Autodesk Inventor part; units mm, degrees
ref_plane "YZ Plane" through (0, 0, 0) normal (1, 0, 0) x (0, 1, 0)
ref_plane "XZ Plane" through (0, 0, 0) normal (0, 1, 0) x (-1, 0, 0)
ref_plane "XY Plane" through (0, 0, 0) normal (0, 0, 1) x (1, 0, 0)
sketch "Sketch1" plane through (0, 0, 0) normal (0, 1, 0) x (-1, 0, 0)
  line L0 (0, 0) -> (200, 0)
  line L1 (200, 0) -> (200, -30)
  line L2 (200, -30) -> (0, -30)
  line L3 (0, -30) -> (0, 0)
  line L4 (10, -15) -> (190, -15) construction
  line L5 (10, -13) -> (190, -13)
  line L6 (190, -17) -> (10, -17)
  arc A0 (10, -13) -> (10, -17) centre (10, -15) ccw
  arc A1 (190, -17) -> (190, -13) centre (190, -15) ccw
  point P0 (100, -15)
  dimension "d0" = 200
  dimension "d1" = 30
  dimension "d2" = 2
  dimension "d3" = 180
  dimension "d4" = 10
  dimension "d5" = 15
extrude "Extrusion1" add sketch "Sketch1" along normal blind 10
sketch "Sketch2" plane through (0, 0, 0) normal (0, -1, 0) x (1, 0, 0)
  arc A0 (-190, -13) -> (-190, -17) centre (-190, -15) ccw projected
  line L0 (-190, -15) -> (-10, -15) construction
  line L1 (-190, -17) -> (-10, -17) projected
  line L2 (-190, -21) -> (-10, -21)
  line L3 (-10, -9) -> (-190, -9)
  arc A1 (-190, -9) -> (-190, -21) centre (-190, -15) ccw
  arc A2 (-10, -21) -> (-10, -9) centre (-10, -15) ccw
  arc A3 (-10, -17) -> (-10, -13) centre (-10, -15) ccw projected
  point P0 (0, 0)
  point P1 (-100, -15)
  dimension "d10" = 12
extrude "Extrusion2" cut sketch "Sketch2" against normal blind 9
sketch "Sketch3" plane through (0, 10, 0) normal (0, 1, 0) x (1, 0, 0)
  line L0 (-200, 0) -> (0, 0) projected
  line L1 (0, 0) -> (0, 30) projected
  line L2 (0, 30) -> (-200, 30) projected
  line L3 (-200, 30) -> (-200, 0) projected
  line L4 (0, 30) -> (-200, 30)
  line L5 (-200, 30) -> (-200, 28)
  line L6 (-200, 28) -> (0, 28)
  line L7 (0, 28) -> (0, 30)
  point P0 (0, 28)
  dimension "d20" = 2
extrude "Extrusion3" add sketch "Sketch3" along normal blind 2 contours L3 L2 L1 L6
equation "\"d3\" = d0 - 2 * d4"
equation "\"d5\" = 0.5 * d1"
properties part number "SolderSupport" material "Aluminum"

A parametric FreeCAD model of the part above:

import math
import FreeCAD as App
import Part
import Sketcher

V = App.Vector
Q = App.Units.Quantity

doc = App.newDocument("Part")
body = doc.addObject("PartDesign::Body", "Body")

# Sketch on XZ plane
sketch1 = doc.addObject("Sketcher::SketchObject", "Sketch")
body.addObject(sketch1)
sketch1.AttachmentSupport = (doc.XZ_Plane, [""])
sketch1.MapMode = "FlatFace"
sketch1.addGeometry([
    Part.LineSegment(V(-200, 0, 0), V(0, 0, 0)),  # 0
    Part.LineSegment(V(0, 0, 0), V(0, -30, 0)),  # 1
    Part.LineSegment(V(0, -30, 0), V(-200, -30, 0)),  # 2
    Part.LineSegment(V(-200, -30, 0), V(-200, 0, 0)),  # 3
    Part.ArcOfCircle(Part.Circle(V(-10, -15, 0), V(0, 0, 1), 2), math.radians(-90), math.radians(90)),  # 4
    Part.LineSegment(V(-10, -13, 0), V(-190, -13, 0)),  # 5
    Part.ArcOfCircle(Part.Circle(V(-190, -15, 0), V(0, 0, 1), 2), math.radians(90), math.radians(270)),  # 6
    Part.LineSegment(V(-190, -17, 0), V(-10, -17, 0)),  # 7
], False)
sketch1.addConstraint([
    Sketcher.Constraint("Coincident", 0, 2, 1, 1),
    Sketcher.Constraint("Coincident", 1, 2, 2, 1),
    Sketcher.Constraint("Coincident", 2, 2, 3, 1),
    Sketcher.Constraint("Coincident", 3, 2, 0, 1),
    Sketcher.Constraint("Tangent", 4, 2, 5, 1),
    Sketcher.Constraint("Tangent", 5, 2, 6, 1),
    Sketcher.Constraint("Tangent", 6, 2, 7, 1),
    Sketcher.Constraint("Tangent", 7, 2, 4, 1),
    Sketcher.Constraint("Horizontal", 0),
    Sketcher.Constraint("Vertical", 1),
    Sketcher.Constraint("Horizontal", 2),
    Sketcher.Constraint("Vertical", 3),
    Sketcher.Constraint("Horizontal", 5),
    Sketcher.Constraint("Horizontal", 7),
    Sketcher.Constraint("Coincident", 0, 2, -1, 1),
    Sketcher.Constraint("Radius", 4, Q("2 mm")),
    Sketcher.Constraint("DistanceX", 0, 1, 0, 2, Q("200 mm")),
    Sketcher.Constraint("DistanceX", 5, 2, 5, 1, Q("180 mm")),
    Sketcher.Constraint("DistanceY", 1, 2, 1, 1, Q("30 mm")),
    Sketcher.Constraint("DistanceX", 4, 3, -1, 1, Q("10 mm")),
    Sketcher.Constraint("DistanceY", 4, 3, -1, 1, Q("15 mm")),
])
pad1 = doc.addObject("PartDesign::Pad", "Pad")
body.addObject(pad1)
pad1.Profile = sketch1
pad1.Length = 10
pad1.Reversed = True

# Sketch on XZ plane
sketch2 = doc.addObject("Sketcher::SketchObject", "Sketch001")
body.addObject(sketch2)
sketch2.AttachmentSupport = (doc.XZ_Plane, [""])
sketch2.MapMode = "FlatFace"
sketch2.addGeometry([
    Part.ArcOfCircle(Part.Circle(V(-190, -15, 0), V(0, 0, 1), 6), math.radians(90), math.radians(270)),
    Part.LineSegment(V(-190, -21, 0), V(-10, -21, 0)),
    Part.ArcOfCircle(Part.Circle(V(-10, -15, 0), V(0, 0, 1), 6), math.radians(-90), math.radians(90)),
    Part.LineSegment(V(-10, -9, 0), V(-190, -9, 0)),
], False)
sketch2.addConstraint([
    Sketcher.Constraint("Tangent", 0, 2, 1, 1),
    Sketcher.Constraint("Tangent", 1, 2, 2, 1),
    Sketcher.Constraint("Tangent", 2, 2, 3, 1),
    Sketcher.Constraint("Tangent", 3, 2, 0, 1),
    Sketcher.Constraint("Horizontal", 1),
    Sketcher.Constraint("Horizontal", 3),
    Sketcher.Constraint("Radius", 0, Q("6 mm")),
    Sketcher.Constraint("DistanceX", 1, 1, 1, 2, Q("180 mm")),
    Sketcher.Constraint("DistanceX", 0, 3, -1, 1, Q("190 mm")),
    Sketcher.Constraint("DistanceY", 0, 3, -1, 1, Q("15 mm")),
])
pocket1 = doc.addObject("PartDesign::Pocket", "Pocket")
body.addObject(pocket1)
pocket1.Profile = sketch2
pocket1.Length = 9

# Sketch on XZ plane
sketch3 = doc.addObject("Sketcher::SketchObject", "Sketch002")
body.addObject(sketch3)
sketch3.AttachmentSupport = (doc.XZ_Plane, [""])
sketch3.MapMode = "FlatFace"
sketch3.AttachmentOffset = App.Placement(V(0, 0, -10), App.Rotation())
sketch3.addGeometry([
    Part.LineSegment(V(-200, -30, 0), V(-200, -28, 0)),
    Part.LineSegment(V(-200, -28, 0), V(0, -28, 0)),
    Part.LineSegment(V(0, -28, 0), V(0, -30, 0)),
    Part.LineSegment(V(0, -30, 0), V(-200, -30, 0)),
], False)
sketch3.addConstraint([
    Sketcher.Constraint("Coincident", 0, 2, 1, 1),
    Sketcher.Constraint("Coincident", 1, 2, 2, 1),
    Sketcher.Constraint("Coincident", 2, 2, 3, 1),
    Sketcher.Constraint("Coincident", 3, 2, 0, 1),
    Sketcher.Constraint("Vertical", 0),
    Sketcher.Constraint("Horizontal", 1),
    Sketcher.Constraint("Vertical", 2),
    Sketcher.Constraint("Horizontal", 3),
    Sketcher.Constraint("PointOnObject", 1, 2, -2),
    Sketcher.Constraint("DistanceY", 0, 1, 0, 2, Q("2 mm")),
    Sketcher.Constraint("DistanceX", 1, 1, 1, 2, Q("200 mm")),
    Sketcher.Constraint("DistanceY", 0, 2, -1, 1, Q("28 mm")),
])
pad2 = doc.addObject("PartDesign::Pad", "Pad001")
body.addObject(pad2)
pad2.Profile = sketch3
pad2.Length = 2
pad2.Reversed = True

doc.recompute()
